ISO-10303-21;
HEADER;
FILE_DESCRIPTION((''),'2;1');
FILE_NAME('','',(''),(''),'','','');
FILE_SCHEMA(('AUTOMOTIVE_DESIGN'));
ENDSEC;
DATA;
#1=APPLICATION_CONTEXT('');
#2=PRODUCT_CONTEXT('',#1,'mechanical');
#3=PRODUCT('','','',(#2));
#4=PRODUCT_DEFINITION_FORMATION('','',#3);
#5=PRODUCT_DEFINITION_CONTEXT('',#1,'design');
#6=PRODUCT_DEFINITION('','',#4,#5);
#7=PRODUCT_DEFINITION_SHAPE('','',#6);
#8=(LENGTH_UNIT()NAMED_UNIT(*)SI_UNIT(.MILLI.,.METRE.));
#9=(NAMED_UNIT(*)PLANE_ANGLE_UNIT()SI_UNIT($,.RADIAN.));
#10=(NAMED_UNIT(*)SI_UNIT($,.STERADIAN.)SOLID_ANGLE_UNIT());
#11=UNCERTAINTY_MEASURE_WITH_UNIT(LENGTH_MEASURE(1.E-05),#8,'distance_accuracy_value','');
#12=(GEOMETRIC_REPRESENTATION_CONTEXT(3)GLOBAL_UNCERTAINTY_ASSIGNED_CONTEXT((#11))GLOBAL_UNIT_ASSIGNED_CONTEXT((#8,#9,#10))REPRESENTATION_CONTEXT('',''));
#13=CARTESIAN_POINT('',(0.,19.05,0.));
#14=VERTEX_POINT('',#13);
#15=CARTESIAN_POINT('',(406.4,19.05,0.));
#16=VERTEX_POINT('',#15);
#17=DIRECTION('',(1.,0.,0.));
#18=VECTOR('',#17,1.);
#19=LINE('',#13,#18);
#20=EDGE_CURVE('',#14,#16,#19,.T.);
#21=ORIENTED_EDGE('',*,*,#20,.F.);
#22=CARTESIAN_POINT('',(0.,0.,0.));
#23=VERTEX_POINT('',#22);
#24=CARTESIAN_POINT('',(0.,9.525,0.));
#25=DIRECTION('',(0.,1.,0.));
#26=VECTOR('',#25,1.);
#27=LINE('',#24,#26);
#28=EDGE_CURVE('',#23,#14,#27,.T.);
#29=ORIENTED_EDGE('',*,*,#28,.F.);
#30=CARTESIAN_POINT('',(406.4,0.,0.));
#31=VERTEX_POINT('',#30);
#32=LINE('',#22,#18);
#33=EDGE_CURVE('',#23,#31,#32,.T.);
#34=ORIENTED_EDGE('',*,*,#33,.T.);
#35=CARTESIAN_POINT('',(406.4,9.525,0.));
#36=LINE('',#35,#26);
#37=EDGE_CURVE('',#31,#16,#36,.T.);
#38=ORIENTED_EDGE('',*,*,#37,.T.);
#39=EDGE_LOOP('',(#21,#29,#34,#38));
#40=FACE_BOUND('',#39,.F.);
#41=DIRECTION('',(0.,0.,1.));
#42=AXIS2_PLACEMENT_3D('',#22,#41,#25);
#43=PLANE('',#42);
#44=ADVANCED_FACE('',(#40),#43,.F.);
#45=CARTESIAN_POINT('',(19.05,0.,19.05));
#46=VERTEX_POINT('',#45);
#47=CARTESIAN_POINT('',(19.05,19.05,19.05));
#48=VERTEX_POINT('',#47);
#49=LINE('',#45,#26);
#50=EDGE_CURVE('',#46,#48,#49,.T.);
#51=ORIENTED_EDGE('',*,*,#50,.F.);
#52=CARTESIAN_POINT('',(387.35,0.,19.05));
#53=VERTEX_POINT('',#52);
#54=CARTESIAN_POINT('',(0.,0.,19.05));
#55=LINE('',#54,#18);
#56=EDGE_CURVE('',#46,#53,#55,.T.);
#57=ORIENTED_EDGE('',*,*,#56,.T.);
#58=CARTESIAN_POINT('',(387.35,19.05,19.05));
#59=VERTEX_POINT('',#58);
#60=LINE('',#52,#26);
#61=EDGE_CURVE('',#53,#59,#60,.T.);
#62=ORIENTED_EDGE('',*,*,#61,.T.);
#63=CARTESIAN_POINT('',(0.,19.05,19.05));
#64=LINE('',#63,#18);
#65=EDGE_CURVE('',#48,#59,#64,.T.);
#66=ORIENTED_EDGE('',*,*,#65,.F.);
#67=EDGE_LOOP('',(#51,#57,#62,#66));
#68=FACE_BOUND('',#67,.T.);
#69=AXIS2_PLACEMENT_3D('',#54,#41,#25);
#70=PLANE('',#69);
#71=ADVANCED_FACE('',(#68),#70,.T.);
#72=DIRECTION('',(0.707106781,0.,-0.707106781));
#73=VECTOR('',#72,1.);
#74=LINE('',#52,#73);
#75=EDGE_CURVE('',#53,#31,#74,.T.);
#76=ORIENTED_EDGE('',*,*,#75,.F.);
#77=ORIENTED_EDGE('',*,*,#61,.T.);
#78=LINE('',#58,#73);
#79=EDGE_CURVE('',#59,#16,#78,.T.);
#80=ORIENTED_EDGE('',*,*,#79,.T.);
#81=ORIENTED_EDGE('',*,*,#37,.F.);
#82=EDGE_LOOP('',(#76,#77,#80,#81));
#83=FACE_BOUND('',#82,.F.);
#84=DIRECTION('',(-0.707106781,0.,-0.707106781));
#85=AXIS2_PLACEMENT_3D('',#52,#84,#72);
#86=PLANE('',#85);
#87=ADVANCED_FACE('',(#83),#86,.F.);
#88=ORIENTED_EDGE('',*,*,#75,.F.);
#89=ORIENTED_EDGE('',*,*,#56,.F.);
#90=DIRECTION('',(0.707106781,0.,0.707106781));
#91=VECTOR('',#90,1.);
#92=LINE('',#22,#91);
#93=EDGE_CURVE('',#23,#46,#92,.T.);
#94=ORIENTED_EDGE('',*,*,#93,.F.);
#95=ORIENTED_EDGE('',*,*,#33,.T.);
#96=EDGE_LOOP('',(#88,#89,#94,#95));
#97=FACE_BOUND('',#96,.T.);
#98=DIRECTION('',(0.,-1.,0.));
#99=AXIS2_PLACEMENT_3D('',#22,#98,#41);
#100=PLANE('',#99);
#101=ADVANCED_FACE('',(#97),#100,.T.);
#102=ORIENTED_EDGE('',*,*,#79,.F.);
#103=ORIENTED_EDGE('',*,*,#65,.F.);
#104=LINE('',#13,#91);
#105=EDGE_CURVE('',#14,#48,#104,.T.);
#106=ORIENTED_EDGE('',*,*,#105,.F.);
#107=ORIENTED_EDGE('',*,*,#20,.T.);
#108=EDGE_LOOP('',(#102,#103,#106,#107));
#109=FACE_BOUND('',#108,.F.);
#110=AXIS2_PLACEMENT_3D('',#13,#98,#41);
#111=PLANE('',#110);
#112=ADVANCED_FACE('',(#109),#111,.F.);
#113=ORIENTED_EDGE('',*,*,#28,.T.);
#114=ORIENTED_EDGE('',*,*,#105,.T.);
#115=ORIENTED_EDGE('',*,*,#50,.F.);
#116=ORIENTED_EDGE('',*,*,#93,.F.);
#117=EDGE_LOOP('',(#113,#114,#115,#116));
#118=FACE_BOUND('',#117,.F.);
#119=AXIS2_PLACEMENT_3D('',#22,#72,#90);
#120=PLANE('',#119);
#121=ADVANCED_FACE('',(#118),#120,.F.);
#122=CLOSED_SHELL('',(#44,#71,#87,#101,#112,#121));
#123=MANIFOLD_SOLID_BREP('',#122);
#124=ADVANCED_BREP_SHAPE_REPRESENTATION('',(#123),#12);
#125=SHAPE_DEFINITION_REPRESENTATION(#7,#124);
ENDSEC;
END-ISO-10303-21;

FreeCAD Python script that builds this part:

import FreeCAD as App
import Part
import Sketcher

V = App.Vector
Q = App.Units.Quantity


def add_polygon(sketch, points):
    """Adds a closed chain of lines whose ends are joined by coincident constraints."""
    first, n = sketch.GeometryCount, len(points)
    for a, b in zip(points, points[1:] + points[:1]):
        sketch.addGeometry(Part.LineSegment(App.Vector(*a, 0), App.Vector(*b, 0)), False)
    for i in range(n):
        sketch.addConstraint(Sketcher.Constraint("Coincident", first + i, 2, first + (i + 1) % n, 1))

doc = App.newDocument("Part")
body = doc.addObject("PartDesign::Body", "Body")

sketch1 = body.newObject("Sketcher::SketchObject", "Sketch")
sketch1.AttachmentSupport = (doc.getObject("YZ_Plane"), [""])
sketch1.MapMode = "FlatFace"
add_polygon(sketch1, [(0, 19.05), (0, 0), (19.05, 0), (19.05, 19.05)])
sketch1.addConstraint(Sketcher.Constraint("Vertical", 0))
sketch1.addConstraint(Sketcher.Constraint("Horizontal", 1))
sketch1.addConstraint(Sketcher.Constraint("Vertical", 2))
sketch1.addConstraint(Sketcher.Constraint("Horizontal", 3))
sketch1.addConstraint(Sketcher.Constraint("Coincident", 0, 2, -1, 1))
sketch1.addConstraint(Sketcher.Constraint("Equal", 3, 0))
sketch1.addConstraint(Sketcher.Constraint("DistanceX", 1, 1, 1, 2, Q("0.75 in")))
pad1 = body.newObject("PartDesign::Pad", "Pad")
pad1.Profile = sketch1
pad1.Length = Q("16 in")

sketch2 = body.newObject("Sketcher::SketchObject", "Sketch001")
sketch2.AttachmentSupport = (doc.getObject("XZ_Plane"), [""])
sketch2.MapMode = "FlatFace"
add_polygon(sketch2, [(0, 19.05), (0, 0), (19.05, 19.05)])
add_polygon(sketch2, [(387.35, 19.05), (406.4, 0), (406.4, 19.05)])
sketch2.addConstraint(Sketcher.Constraint("Vertical", 0))
sketch2.addConstraint(Sketcher.Constraint("Horizontal", 2))
sketch2.addConstraint(Sketcher.Constraint("Vertical", 4))
sketch2.addConstraint(Sketcher.Constraint("Horizontal", 5))
sketch2.addConstraint(Sketcher.Constraint("Coincident", 0, 2, -1, 1))
sketch2.addConstraint(Sketcher.Constraint("PointOnObject", 3, 2, -1))
sketch2.addConstraint(Sketcher.Constraint("Perpendicular", 1, 3))
sketch2.addConstraint(Sketcher.Constraint("Horizontal", 2, 2, 4, 2))
sketch2.addConstraint(Sketcher.Constraint("Equal", 2, 5))
sketch2.addConstraint(Sketcher.Constraint("DistanceX", -1, 1, 3, 2, Q("16 in")))
sketch2.addConstraint(Sketcher.Constraint("DistanceX", 2, 2, 2, 1, Q("0.75 in")))
pocket1 = body.newObject("PartDesign::Pocket", "Pocket")
pocket1.Profile = sketch2
pocket1.Length = Q("0.75 in")

doc.recompute()
